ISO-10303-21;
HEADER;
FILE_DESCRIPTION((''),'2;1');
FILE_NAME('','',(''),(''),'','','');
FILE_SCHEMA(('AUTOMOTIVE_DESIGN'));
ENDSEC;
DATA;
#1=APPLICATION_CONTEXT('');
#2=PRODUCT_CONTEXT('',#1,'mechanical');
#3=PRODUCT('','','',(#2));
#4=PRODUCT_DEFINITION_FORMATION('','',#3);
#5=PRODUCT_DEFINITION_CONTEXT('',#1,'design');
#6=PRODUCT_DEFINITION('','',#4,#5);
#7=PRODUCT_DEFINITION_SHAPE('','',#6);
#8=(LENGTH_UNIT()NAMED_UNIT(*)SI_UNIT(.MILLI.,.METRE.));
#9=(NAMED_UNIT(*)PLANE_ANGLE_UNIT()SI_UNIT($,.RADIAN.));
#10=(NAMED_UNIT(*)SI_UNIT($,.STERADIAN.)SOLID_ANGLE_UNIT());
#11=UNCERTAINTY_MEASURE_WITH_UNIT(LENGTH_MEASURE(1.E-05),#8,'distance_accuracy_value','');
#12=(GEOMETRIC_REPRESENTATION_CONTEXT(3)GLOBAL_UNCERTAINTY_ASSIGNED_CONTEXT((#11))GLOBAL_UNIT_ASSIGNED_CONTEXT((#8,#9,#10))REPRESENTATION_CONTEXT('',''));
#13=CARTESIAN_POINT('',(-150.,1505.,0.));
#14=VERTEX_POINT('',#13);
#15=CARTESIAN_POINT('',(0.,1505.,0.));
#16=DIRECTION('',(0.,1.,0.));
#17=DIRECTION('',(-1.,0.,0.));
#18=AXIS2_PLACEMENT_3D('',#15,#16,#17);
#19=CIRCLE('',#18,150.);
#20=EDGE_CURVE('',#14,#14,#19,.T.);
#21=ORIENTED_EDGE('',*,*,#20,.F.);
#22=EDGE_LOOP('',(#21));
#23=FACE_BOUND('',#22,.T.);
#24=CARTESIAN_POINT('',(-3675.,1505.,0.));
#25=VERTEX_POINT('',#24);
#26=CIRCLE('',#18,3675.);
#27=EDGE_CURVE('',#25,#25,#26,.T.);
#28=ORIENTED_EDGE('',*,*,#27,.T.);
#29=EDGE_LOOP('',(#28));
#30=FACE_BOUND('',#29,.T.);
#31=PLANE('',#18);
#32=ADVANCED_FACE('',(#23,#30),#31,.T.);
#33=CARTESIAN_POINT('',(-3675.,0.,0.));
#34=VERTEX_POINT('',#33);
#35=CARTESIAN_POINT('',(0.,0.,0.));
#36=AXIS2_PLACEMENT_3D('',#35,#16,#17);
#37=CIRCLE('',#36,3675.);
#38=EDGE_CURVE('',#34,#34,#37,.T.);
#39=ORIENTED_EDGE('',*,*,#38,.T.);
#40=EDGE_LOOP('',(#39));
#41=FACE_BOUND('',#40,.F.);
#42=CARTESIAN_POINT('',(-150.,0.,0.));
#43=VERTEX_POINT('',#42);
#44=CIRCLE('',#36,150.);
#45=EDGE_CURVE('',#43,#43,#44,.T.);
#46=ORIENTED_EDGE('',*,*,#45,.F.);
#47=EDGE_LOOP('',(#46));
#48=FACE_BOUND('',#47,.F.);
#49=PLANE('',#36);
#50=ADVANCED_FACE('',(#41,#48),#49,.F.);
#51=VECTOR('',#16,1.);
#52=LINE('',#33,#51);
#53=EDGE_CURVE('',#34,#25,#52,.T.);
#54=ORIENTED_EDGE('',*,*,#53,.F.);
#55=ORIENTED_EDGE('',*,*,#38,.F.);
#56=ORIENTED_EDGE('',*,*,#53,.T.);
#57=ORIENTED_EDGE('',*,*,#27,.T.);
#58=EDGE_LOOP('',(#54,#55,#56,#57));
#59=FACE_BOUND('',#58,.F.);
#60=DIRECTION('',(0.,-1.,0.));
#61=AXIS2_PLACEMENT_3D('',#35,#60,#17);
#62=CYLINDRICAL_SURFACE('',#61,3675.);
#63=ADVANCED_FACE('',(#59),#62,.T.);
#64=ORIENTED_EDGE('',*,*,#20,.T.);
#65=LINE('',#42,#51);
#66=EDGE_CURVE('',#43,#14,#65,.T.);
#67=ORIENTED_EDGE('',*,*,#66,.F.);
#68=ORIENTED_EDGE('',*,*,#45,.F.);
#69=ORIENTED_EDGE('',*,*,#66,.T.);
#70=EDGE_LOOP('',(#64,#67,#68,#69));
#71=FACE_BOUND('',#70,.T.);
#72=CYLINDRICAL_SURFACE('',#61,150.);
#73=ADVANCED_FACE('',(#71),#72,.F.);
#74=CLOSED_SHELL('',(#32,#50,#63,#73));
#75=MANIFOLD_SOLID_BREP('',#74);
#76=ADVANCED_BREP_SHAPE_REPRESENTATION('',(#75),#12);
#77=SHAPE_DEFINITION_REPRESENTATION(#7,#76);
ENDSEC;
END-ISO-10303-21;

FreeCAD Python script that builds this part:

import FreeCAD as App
import Part
import Sketcher

V = App.Vector
Q = App.Units.Quantity

doc = App.newDocument("Part")
body = doc.addObject("PartDesign::Body", "Body")

sketch1 = doc.addObject("Sketcher::SketchObject", "Sketch")
body.addObject(sketch1)
sketch1.AttachmentSupport = (doc.XZ_Plane, [""])
sketch1.MapMode = "FlatFace"
sketch1.addGeometry([
    Part.Circle(V(0, 0, 0), V(0, 0, 1), 3675),
    Part.Circle(V(0, 0, 0), V(0, 0, 1), 150),
], False)
sketch1.addConstraint([
    Sketcher.Constraint("Coincident", 0, 3, -1, 1),
    Sketcher.Constraint("Coincident", 1, 3, -1, 1),
    Sketcher.Constraint("Diameter", 0, Q("7350 mm")),
    Sketcher.Constraint("Diameter", 1, Q("300 mm")),
])
pad1 = doc.addObject("PartDesign::Pad", "Pad")
body.addObject(pad1)
pad1.Profile = sketch1
pad1.Length = 1505
pad1.Reversed = True

doc.recompute()
